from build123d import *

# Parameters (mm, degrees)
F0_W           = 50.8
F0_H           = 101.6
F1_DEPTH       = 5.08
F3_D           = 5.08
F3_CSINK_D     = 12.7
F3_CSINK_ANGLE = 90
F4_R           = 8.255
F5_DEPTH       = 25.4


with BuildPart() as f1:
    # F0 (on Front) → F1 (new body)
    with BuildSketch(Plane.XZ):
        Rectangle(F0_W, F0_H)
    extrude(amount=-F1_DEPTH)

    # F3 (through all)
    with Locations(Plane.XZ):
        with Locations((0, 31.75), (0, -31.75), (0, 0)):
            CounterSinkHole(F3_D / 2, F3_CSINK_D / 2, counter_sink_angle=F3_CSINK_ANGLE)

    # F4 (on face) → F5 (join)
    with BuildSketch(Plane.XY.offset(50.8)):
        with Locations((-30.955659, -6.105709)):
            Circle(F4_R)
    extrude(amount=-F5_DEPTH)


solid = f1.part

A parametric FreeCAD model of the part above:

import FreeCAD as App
import Part
import Sketcher

V = App.Vector
Q = App.Units.Quantity

doc = App.newDocument("Part")
body = doc.addObject("PartDesign::Body", "Body")
body.AllowCompound = True

sketch1 = body.newObject("Sketcher::SketchObject", "Sketch")
sketch1.AttachmentSupport = (doc.getObject("XZ_Plane"), [""])
sketch1.MapMode = "FlatFace"
sketch1.addGeometry([
    Part.LineSegment(V(-25, 51, 0), V(-25, -51, 0)),
    Part.LineSegment(V(-25, -51, 0), V(25, -51, 0)),
    Part.LineSegment(V(25, -51, 0), V(25, 51, 0)),
    Part.LineSegment(V(25, 51, 0), V(-25, 51, 0)),
], False)
sketch1.addConstraint([
    Sketcher.Constraint("Coincident", 0, 2, 1, 1),
    Sketcher.Constraint("Coincident", 1, 2, 2, 1),
    Sketcher.Constraint("Coincident", 2, 2, 3, 1),
    Sketcher.Constraint("Coincident", 3, 2, 0, 1),
    Sketcher.Constraint("Vertical", 0),
    Sketcher.Constraint("Horizontal", 1),
    Sketcher.Constraint("Vertical", 2),
    Sketcher.Constraint("Horizontal", 3),
    Sketcher.Constraint("Symmetric", 0, 2, 2, 2, -1, 1),
    Sketcher.Constraint("DistanceX", 1, 1, 1, 2, Q("2 in")),
    Sketcher.Constraint("DistanceY", 0, 2, 0, 1, Q("4 in")),
])
pad1 = body.newObject("PartDesign::Pad", "Pad")
pad1.Profile = sketch1
pad1.Length = Q("0.2 in")
pad1.Reversed = True

sketch2 = body.newObject("Sketcher::SketchObject", "Sketch001")
sketch2.AttachmentSupport = (doc.getObject("XZ_Plane"), [""])
sketch2.MapMode = "FlatFace"
sketch2.addGeometry([
    Part.Circle(V(0, 31.8, 0), V(0, 0, 1), 2.5),
    Part.Circle(V(0, -31.8, 0), V(0, 0, 1), 2.5),
    Part.Circle(V(0, 0, 0), V(0, 0, 1), 2.5),
], False)
sketch2.addConstraint([
    Sketcher.Constraint("Coincident", 2, 3, -1, 1),
    Sketcher.Constraint("Equal", 0, 1),
    Sketcher.Constraint("Equal", 1, 2),
    Sketcher.Constraint("Symmetric", 0, 3, 1, 3, -1, 1),
    Sketcher.Constraint("PointOnObject", 0, 3, -2),
    Sketcher.Constraint("Diameter", 0, Q("0.2 in")),
    Sketcher.Constraint("DistanceY", 1, 3, 0, 3, Q("2.5 in")),
])
doc.recompute()
hole = body.newObject("PartDesign::Hole", "Hole")
hole.Profile = sketch2
hole.ThreadType = "None"
hole.Diameter = Q("0.2 in")
hole.DepthType = "ThroughAll"
hole.HoleCutType = "Countersink"
hole.HoleCutDiameter = Q("0.5 in")
hole.HoleCutCountersinkAngle = 90

sketch3 = body.newObject("Sketcher::SketchObject", "Sketch002")
sketch3.AttachmentSupport = (doc.getObject("XY_Plane"), [""])
sketch3.MapMode = "FlatFace"
sketch3.AttachmentOffset = App.Placement(V(0, 0, 2 * 25.4), App.Rotation())
sketch3.addGeometry(Part.Circle(V(-31, -6, 0), V(0, 0, 1), 8), False)
sketch3.addConstraint([
    Sketcher.Constraint("Diameter", 0, Q("0.65 in")),
    Sketcher.Constraint("DistanceX", 0, 3, -1, 1, 30.955659),
    Sketcher.Constraint("DistanceY", 0, 3, -1, 1, 6.105709),
])
pad2 = body.newObject("PartDesign::Pad", "Pad001")
pad2.Profile = sketch3
pad2.Length = Q("1 in")
pad2.Reversed = True

doc.recompute()
